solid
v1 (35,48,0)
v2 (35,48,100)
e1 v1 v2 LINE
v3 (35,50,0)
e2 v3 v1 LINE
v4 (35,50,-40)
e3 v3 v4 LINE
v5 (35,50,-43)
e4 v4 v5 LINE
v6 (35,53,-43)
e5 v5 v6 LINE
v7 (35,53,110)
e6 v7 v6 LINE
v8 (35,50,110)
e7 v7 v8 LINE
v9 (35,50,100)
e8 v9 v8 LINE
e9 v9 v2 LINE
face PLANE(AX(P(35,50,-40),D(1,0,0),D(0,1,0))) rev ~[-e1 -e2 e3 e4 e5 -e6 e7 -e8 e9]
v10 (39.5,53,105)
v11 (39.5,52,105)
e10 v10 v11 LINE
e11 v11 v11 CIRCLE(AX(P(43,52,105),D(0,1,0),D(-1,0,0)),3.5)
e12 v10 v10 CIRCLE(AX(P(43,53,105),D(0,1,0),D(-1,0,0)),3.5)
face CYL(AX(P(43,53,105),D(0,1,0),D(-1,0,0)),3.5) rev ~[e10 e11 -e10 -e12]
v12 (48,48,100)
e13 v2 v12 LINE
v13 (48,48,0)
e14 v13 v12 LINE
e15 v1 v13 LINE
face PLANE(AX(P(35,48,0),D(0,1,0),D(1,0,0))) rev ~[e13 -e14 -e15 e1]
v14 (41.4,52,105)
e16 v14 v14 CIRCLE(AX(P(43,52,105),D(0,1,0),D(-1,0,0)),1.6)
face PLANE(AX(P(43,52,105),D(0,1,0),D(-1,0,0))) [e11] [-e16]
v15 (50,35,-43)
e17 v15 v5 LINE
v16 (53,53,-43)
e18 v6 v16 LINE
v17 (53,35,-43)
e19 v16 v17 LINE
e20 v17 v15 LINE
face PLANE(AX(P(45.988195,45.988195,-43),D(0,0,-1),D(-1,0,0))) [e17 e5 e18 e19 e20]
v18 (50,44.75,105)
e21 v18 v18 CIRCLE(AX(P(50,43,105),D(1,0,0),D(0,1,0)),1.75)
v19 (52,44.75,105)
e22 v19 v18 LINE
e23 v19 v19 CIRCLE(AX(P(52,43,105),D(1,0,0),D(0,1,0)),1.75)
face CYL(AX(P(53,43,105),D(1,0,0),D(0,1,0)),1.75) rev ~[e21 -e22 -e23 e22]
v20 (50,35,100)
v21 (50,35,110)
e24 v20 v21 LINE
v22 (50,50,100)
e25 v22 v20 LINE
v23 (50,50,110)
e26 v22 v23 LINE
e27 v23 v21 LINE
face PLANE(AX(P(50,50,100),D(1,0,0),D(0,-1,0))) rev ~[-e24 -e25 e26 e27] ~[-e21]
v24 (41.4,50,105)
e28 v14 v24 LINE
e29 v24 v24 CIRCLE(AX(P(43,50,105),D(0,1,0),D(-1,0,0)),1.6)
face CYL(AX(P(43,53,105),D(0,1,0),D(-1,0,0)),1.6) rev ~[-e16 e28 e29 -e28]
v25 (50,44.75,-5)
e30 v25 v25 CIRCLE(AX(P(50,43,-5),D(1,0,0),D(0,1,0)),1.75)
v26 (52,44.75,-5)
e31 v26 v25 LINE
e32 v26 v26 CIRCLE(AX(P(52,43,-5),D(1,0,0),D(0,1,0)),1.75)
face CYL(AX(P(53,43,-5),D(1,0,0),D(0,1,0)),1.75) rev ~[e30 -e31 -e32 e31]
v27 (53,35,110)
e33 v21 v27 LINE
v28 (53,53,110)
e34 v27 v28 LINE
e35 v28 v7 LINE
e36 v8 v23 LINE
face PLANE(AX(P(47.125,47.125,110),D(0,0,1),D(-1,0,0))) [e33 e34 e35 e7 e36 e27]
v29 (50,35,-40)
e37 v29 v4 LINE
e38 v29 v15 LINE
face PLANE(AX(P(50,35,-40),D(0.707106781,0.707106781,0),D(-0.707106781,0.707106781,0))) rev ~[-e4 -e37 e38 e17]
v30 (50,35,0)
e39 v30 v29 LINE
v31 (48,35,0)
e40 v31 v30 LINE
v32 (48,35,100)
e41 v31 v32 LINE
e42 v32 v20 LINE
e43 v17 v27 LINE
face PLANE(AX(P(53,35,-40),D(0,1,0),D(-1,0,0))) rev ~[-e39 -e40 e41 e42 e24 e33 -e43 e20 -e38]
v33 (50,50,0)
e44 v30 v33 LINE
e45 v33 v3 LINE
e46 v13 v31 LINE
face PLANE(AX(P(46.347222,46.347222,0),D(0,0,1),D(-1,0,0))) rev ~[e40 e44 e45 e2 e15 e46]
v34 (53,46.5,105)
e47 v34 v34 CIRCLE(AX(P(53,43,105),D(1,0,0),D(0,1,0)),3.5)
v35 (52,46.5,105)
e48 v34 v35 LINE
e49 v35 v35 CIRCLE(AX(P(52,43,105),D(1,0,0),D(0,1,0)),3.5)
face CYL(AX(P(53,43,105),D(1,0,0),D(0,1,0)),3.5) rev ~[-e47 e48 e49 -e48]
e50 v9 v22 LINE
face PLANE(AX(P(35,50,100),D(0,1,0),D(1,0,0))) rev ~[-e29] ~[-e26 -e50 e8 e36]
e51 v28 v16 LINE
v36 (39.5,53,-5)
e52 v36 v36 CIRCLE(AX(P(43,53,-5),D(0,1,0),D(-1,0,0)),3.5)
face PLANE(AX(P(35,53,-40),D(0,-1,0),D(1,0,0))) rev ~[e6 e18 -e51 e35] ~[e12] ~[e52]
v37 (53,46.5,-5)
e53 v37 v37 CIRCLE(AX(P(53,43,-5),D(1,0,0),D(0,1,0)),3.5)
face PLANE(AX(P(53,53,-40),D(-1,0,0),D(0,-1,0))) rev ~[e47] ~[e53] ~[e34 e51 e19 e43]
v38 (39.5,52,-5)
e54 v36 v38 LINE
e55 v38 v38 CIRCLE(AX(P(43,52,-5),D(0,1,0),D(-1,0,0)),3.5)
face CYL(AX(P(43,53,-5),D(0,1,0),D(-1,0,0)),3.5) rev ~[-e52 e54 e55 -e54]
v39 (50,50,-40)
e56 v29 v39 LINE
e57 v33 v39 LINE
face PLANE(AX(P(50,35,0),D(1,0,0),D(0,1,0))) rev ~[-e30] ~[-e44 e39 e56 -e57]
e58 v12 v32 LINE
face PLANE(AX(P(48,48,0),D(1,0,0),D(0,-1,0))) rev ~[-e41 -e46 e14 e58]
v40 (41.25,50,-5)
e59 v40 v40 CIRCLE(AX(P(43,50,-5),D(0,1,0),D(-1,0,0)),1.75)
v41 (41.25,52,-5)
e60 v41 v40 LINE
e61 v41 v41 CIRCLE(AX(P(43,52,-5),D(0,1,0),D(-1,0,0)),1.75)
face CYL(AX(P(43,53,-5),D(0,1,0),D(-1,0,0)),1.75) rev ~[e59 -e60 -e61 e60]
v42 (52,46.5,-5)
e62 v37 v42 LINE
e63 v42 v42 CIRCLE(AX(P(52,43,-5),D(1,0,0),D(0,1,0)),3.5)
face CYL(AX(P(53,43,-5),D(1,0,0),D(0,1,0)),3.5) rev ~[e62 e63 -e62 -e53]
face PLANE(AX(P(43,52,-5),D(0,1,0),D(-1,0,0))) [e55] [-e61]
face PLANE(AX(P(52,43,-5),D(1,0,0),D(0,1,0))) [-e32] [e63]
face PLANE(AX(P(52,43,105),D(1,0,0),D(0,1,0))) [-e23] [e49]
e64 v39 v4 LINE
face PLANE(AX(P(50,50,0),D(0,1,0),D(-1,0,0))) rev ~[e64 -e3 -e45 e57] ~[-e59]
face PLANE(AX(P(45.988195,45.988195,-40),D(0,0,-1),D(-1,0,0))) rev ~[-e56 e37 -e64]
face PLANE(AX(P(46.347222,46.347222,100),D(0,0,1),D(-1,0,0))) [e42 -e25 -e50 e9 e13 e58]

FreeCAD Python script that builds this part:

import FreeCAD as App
import Part
import Sketcher
from FreeCAD import Vector
Q = App.Units.Quantity


def add_polygon(sketch, points):
    """Adds a closed chain of lines whose ends are joined by coincident constraints."""
    first, n = sketch.GeometryCount, len(points)
    for a, b in zip(points, points[1:] + points[:1]):
        sketch.addGeometry(Part.LineSegment(App.Vector(*a, 0), App.Vector(*b, 0)), False)
    for i in range(n):
        sketch.addConstraint(Sketcher.Constraint("Coincident", first + i, 2, first + (i + 1) % n, 1))

doc = App.newDocument("Part")
body = doc.addObject("PartDesign::Body", "Body")

sketch1 = doc.addObject("Sketcher::SketchObject", "Sketch")
body.addObject(sketch1)
sketch1.AttachmentSupport = (doc.XY_Plane, [""])
sketch1.MapMode = "FlatFace"
add_polygon(sketch1, [(-53, -35), (-53, -53), (-35, -53), (-35, -48), (-48, -48), (-48, -35)])
sketch1.addConstraint([
    Sketcher.Constraint("Vertical", 0),
    Sketcher.Constraint("Horizontal", 1),
    Sketcher.Constraint("Vertical", 2),
    Sketcher.Constraint("Horizontal", 3),
    Sketcher.Constraint("Vertical", 4),
    Sketcher.Constraint("Horizontal", 5),
    Sketcher.Constraint("Equal", 1, 0),
    Sketcher.Constraint("Equal", 5, 2),
    Sketcher.Constraint("DistanceX", 1, 1, 1, 2, Q("18 mm")),
    Sketcher.Constraint("DistanceX", 3, 2, 3, 1, Q("13 mm")),
    Sketcher.Constraint("DistanceX", 0, 2, -1, 1, Q("53 mm")),
    Sketcher.Constraint("DistanceY", 0, 2, -1, 1, Q("53 mm")),
])
pad1 = doc.addObject("PartDesign::Pad", "Pad")
body.addObject(pad1)
pad1.Profile = sketch1
pad1.Length = 100

sketch2 = doc.addObject("Sketcher::SketchObject", "Sketch001")
body.addObject(sketch2)
sketch2.AttachmentSupport = (doc.XY_Plane, [""])
sketch2.MapMode = "FlatFace"
sketch2.AttachmentOffset = App.Placement(Vector(0, 0, 100), App.Rotation())
add_polygon(sketch2, [(-53, -35), (-53, -53), (-35, -53), (-35, -50), (-50, -50), (-50, -35)])
sketch2.addConstraint([
    Sketcher.Constraint("Vertical", 0),
    Sketcher.Constraint("Horizontal", 1),
    Sketcher.Constraint("Vertical", 2),
    Sketcher.Constraint("Horizontal", 3),
    Sketcher.Constraint("Vertical", 4),
    Sketcher.Constraint("Horizontal", 5),
    Sketcher.Constraint("Equal", 1, 0),
    Sketcher.Constraint("Equal", 5, 2),
    Sketcher.Constraint("DistanceX", 1, 1, 1, 2, Q("18 mm")),
    Sketcher.Constraint("DistanceX", 3, 2, 3, 1, Q("15 mm")),
    Sketcher.Constraint("DistanceX", 0, 2, -1, 1, Q("53 mm")),
    Sketcher.Constraint("DistanceY", 0, 2, -1, 1, Q("53 mm")),
])
pad2 = doc.addObject("PartDesign::Pad", "Pad001")
body.addObject(pad2)
pad2.Profile = sketch2
pad2.Length = 10

sketch3 = doc.addObject("Sketcher::SketchObject", "Sketch002")
body.addObject(sketch3)
sketch3.AttachmentSupport = (doc.XZ_Plane, [""])
sketch3.MapMode = "FlatFace"
sketch3.AttachmentOffset = App.Placement(Vector(0, 0, 53), App.Rotation())
sketch3.addGeometry(Part.Circle(Vector(-43, 105, 0), Vector(0, 0, 1), 1.6), False)
sketch3.addConstraint([
    Sketcher.Constraint("Diameter", 0, Q("3.2 mm")),
    Sketcher.Constraint("DistanceX", 0, 3, -1, 1, Q("43 mm")),
    Sketcher.Constraint("DistanceY", -1, 1, 0, 3, Q("105 mm")),
])
pocket1 = doc.addObject("PartDesign::Pocket", "Pocket")
body.addObject(pocket1)
pocket1.Profile = sketch3
pocket1.Length = 5

sketch4 = doc.addObject("Sketcher::SketchObject", "Sketch003")
body.addObject(sketch4)
sketch4.AttachmentSupport = (doc.XZ_Plane, [""])
sketch4.MapMode = "FlatFace"
sketch4.AttachmentOffset = App.Placement(Vector(0, 0, 53), App.Rotation())
sketch4.addGeometry(Part.Circle(Vector(-43, 105, 0), Vector(0, 0, 1), 3.5), False)
sketch4.addConstraint([
    Sketcher.Constraint("Diameter", 0, Q("7 mm")),
    Sketcher.Constraint("DistanceX", 0, 3, -1, 1, Q("43 mm")),
    Sketcher.Constraint("DistanceY", -1, 1, 0, 3, Q("105 mm")),
])
pocket2 = doc.addObject("PartDesign::Pocket", "Pocket001")
body.addObject(pocket2)
pocket2.Profile = sketch4
pocket2.Length = 1

sketch5 = doc.addObject("Sketcher::SketchObject", "Sketch004")
body.addObject(sketch5)
sketch5.AttachmentSupport = (doc.YZ_Plane, [""])
sketch5.MapMode = "FlatFace"
sketch5.AttachmentOffset = App.Placement(Vector(0, 0, -53), App.Rotation())
sketch5.addGeometry(Part.Circle(Vector(-43, 105, 0), Vector(0, 0, 1), 1.75), False)
sketch5.addConstraint([
    Sketcher.Constraint("Diameter", 0, Q("3.5 mm")),
    Sketcher.Constraint("DistanceX", 0, 3, -1, 1, Q("43 mm")),
    Sketcher.Constraint("DistanceY", -1, 1, 0, 3, Q("105 mm")),
])
pocket3 = doc.addObject("PartDesign::Pocket", "Pocket002")
body.addObject(pocket3)
pocket3.Profile = sketch5
pocket3.Length = 5
pocket3.Reversed = True

sketch6 = doc.addObject("Sketcher::SketchObject", "Sketch005")
body.addObject(sketch6)
sketch6.AttachmentSupport = (doc.YZ_Plane, [""])
sketch6.MapMode = "FlatFace"
sketch6.AttachmentOffset = App.Placement(Vector(0, 0, -53), App.Rotation())
sketch6.addGeometry(Part.Circle(Vector(-43, 105, 0), Vector(0, 0, 1), 3.5), False)
sketch6.addConstraint([
    Sketcher.Constraint("Diameter", 0, Q("7 mm")),
    Sketcher.Constraint("DistanceX", 0, 3, -1, 1, Q("43 mm")),
    Sketcher.Constraint("DistanceY", -1, 1, 0, 3, Q("105 mm")),
])
pocket4 = doc.addObject("PartDesign::Pocket", "Pocket003")
body.addObject(pocket4)
pocket4.Profile = sketch6
pocket4.Length = 1
pocket4.Reversed = True

sketch7 = doc.addObject("Sketcher::SketchObject", "Sketch006")
body.addObject(sketch7)
sketch7.AttachmentSupport = (doc.XY_Plane, [""])
sketch7.MapMode = "FlatFace"
add_polygon(sketch7, [(-35, -53), (-53, -53), (-53, -35), (-50, -35), (-50, -50), (-35, -50)])
sketch7.addConstraint([
    Sketcher.Constraint("Horizontal", 0),
    Sketcher.Constraint("Vertical", 1),
    Sketcher.Constraint("Horizontal", 2),
    Sketcher.Constraint("Vertical", 3),
    Sketcher.Constraint("Horizontal", 4),
    Sketcher.Constraint("Vertical", 5),
    Sketcher.Constraint("Equal", 0, 1),
    Sketcher.Constraint("Equal", 4, 3),
    Sketcher.Constraint("DistanceX", 0, 2, 0, 1, Q("18 mm")),
    Sketcher.Constraint("DistanceX", 2, 1, 2, 2, Q("3 mm")),
    Sketcher.Constraint("DistanceX", 0, 2, -1, 1, Q("53 mm")),
    Sketcher.Constraint("DistanceY", 0, 2, -1, 1, Q("53 mm")),
])
pad3 = doc.addObject("PartDesign::Pad", "Pad002")
body.addObject(pad3)
pad3.Profile = sketch7
pad3.Length = 40
pad3.Reversed = True

sketch8 = doc.addObject("Sketcher::SketchObject", "Sketch007")
body.addObject(sketch8)
sketch8.AttachmentSupport = (doc.XY_Plane, [""])
sketch8.MapMode = "FlatFace"
sketch8.AttachmentOffset = App.Placement(Vector(0, 0, -40), App.Rotation())
add_polygon(sketch8, [(-35, -50), (-35, -53), (-53, -53), (-53, -35), (-50, -35)])
sketch8.addConstraint([
    Sketcher.Constraint("Vertical", 0),
    Sketcher.Constraint("Horizontal", 1),
    Sketcher.Constraint("Vertical", 2),
    Sketcher.Constraint("Horizontal", 3),
    Sketcher.Constraint("Equal", 3, 0),
    Sketcher.Constraint("Equal", 1, 2),
    Sketcher.Constraint("DistanceX", 1, 2, 1, 1, Q("18 mm")),
    Sketcher.Constraint("DistanceX", 3, 1, 3, 2, Q("3 mm")),
    Sketcher.Constraint("DistanceX", 0, 2, -1, 1, Q("35 mm")),
    Sketcher.Constraint("DistanceY", 0, 2, -1, 1, Q("53 mm")),
])
pad4 = doc.addObject("PartDesign::Pad", "Pad003")
body.addObject(pad4)
pad4.Profile = sketch8
pad4.Length = 3
pad4.Reversed = True

sketch9 = doc.addObject("Sketcher::SketchObject", "Sketch008")
body.addObject(sketch9)
sketch9.AttachmentSupport = (doc.YZ_Plane, [""])
sketch9.MapMode = "FlatFace"
sketch9.AttachmentOffset = App.Placement(Vector(0, 0, -53), App.Rotation())
sketch9.addGeometry(Part.Circle(Vector(-43, -5, 0), Vector(0, 0, 1), 1.75), False)
sketch9.addConstraint([
    Sketcher.Constraint("Diameter", 0, Q("3.5 mm")),
    Sketcher.Constraint("DistanceX", 0, 3, -1, 1, Q("43 mm")),
    Sketcher.Constraint("DistanceY", 0, 3, -1, 1, Q("5 mm")),
])
pocket5 = doc.addObject("PartDesign::Pocket", "Pocket004")
body.addObject(pocket5)
pocket5.Profile = sketch9
pocket5.Length = 5
pocket5.Reversed = True

sketch10 = doc.addObject("Sketcher::SketchObject", "Sketch009")
body.addObject(sketch10)
sketch10.AttachmentSupport = (doc.YZ_Plane, [""])
sketch10.MapMode = "FlatFace"
sketch10.AttachmentOffset = App.Placement(Vector(0, 0, -53), App.Rotation())
sketch10.addGeometry(Part.Circle(Vector(-43, -5, 0), Vector(0, 0, 1), 3.5), False)
sketch10.addConstraint([
    Sketcher.Constraint("Diameter", 0, Q("7 mm")),
    Sketcher.Constraint("DistanceX", 0, 3, -1, 1, Q("43 mm")),
    Sketcher.Constraint("DistanceY", 0, 3, -1, 1, Q("5 mm")),
])
pocket6 = doc.addObject("PartDesign::Pocket", "Pocket005")
body.addObject(pocket6)
pocket6.Profile = sketch10
pocket6.Length = 1
pocket6.Reversed = True

sketch11 = doc.addObject("Sketcher::SketchObject", "Sketch010")
body.addObject(sketch11)
sketch11.AttachmentSupport = (doc.XZ_Plane, [""])
sketch11.MapMode = "FlatFace"
sketch11.AttachmentOffset = App.Placement(Vector(0, 0, 53), App.Rotation())
sketch11.addGeometry(Part.Circle(Vector(-43, -5, 0), Vector(0, 0, 1), 1.75), False)
sketch11.addConstraint([
    Sketcher.Constraint("Diameter", 0, Q("3.5 mm")),
    Sketcher.Constraint("DistanceX", 0, 3, -1, 1, Q("43 mm")),
    Sketcher.Constraint("DistanceY", 0, 3, -1, 1, Q("5 mm")),
])
pocket7 = doc.addObject("PartDesign::Pocket", "Pocket006")
body.addObject(pocket7)
pocket7.Profile = sketch11
pocket7.Length = 5

sketch12 = doc.addObject("Sketcher::SketchObject", "Sketch011")
body.addObject(sketch12)
sketch12.AttachmentSupport = (doc.XZ_Plane, [""])
sketch12.MapMode = "FlatFace"
sketch12.AttachmentOffset = App.Placement(Vector(0, 0, 53), App.Rotation())
sketch12.addGeometry(Part.Circle(Vector(-43, -5, 0), Vector(0, 0, 1), 3.5), False)
sketch12.addConstraint([
    Sketcher.Constraint("Diameter", 0, Q("7 mm")),
    Sketcher.Constraint("DistanceX", 0, 3, -1, 1, Q("43 mm")),
    Sketcher.Constraint("DistanceY", 0, 3, -1, 1, Q("5 mm")),
])
pocket8 = doc.addObject("PartDesign::Pocket", "Pocket007")
body.addObject(pocket8)
pocket8.Profile = sketch12
pocket8.Length = 1
body2 = doc.addObject("PartDesign::Body", "Body001")
doc.recompute()

body.Placement = App.Placement(Vector(0, 0, 0), App.Rotation(Vector(0, 0, 1), 180))
boolean = doc.addObject("PartDesign::Boolean", "Boolean")
body2.addObject(boolean)
boolean.Type = "Fuse"
boolean.addObjects([body])

doc.recompute()
